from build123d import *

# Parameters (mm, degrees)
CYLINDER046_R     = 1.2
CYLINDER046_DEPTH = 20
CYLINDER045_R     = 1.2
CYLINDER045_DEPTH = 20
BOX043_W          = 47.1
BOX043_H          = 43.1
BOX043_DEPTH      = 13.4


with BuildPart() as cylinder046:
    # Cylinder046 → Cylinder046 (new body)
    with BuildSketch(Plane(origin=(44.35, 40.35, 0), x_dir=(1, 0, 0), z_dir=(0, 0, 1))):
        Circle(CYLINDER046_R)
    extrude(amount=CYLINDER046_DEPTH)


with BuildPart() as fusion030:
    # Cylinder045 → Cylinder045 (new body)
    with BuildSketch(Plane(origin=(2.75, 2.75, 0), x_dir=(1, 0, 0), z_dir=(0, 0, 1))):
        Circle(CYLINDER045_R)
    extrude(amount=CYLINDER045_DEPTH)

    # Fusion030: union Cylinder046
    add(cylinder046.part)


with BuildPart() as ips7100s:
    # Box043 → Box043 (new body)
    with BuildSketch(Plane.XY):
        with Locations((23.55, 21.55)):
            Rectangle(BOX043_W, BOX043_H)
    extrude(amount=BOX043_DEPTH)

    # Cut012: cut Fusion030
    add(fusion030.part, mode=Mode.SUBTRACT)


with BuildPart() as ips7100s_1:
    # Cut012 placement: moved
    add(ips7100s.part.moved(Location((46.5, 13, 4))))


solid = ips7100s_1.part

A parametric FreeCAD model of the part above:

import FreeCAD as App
import Part
import Sketcher

V = App.Vector
Q = App.Units.Quantity

doc = App.newDocument("Part")
params = doc.addObject("Spreadsheet::Sheet", "Params")
for row, (alias, value) in enumerate([
    ("sketch1_diameter", "2.4 mm"),
    ("pad1_length", "20 mm"),
    ("sketch2_diameter", "2.4 mm"),
    ("pad2_length", "20 mm"),
    ("sketch3_width", "47.1 mm"),
    ("sketch3_height", "43.1 mm"),
    ("pad3_length", "13.4 mm"),
], start=1):
    params.set(f"A{row}", alias)
    params.set(f"B{row}", "=" + value)
    params.setAlias(f"B{row}", alias)

body = doc.addObject("PartDesign::Body", "Body")

# Sketch on XY plane
sketch1 = body.newObject("Sketcher::SketchObject", "Sketch")
sketch1.AttachmentSupport = (doc.getObject("XY_Plane"), [""])
sketch1.MapMode = "FlatFace"
sketch1.addGeometry(Part.Circle(V(44.4, 40.4, 0), V(0, 0, 1), 1.2), False)
sketch1.addConstraint([
    Sketcher.Constraint("Diameter", 0, Q("2.4 mm")),
    Sketcher.Constraint("DistanceX", -1, 1, 0, 3, Q("44.35 mm")),
    Sketcher.Constraint("DistanceY", -1, 1, 0, 3, Q("40.35 mm")),
])
sketch1.setExpression("Constraints[0]", "Params.sketch1_diameter")
pad1 = body.newObject("PartDesign::Pad", "Pad")
pad1.Profile = sketch1
pad1.setExpression("Length", "Params.pad1_length")
body2 = doc.addObject("PartDesign::Body", "Body001")
body2.AllowCompound = True

# Sketch on XY plane
sketch2 = body2.newObject("Sketcher::SketchObject", "Sketch001")
sketch2.AttachmentSupport = (doc.getObject("XY_Plane001"), [""])
sketch2.MapMode = "FlatFace"
sketch2.addGeometry(Part.Circle(V(2.8, 2.8, 0), V(0, 0, 1), 1.2), False)
sketch2.addConstraint([
    Sketcher.Constraint("Diameter", 0, Q("2.4 mm")),
    Sketcher.Constraint("DistanceX", -1, 1, 0, 3, Q("2.75 mm")),
    Sketcher.Constraint("DistanceY", -1, 1, 0, 3, Q("2.75 mm")),
])
sketch2.setExpression("Constraints[0]", "Params.sketch2_diameter")
pad2 = body2.newObject("PartDesign::Pad", "Pad001")
pad2.Profile = sketch2
pad2.setExpression("Length", "Params.pad2_length")
doc.recompute()

boolean = body2.newObject("PartDesign::Boolean", "Boolean")
boolean.Type = "Fuse"
boolean.addObjects([body])
body3 = doc.addObject("PartDesign::Body", "Body002")

# Sketch on XY plane
sketch3 = body3.newObject("Sketcher::SketchObject", "Sketch002")
sketch3.AttachmentSupport = (doc.getObject("XY_Plane002"), [""])
sketch3.MapMode = "FlatFace"
sketch3.addGeometry([
    Part.LineSegment(V(0, 43, 0), V(0, 0, 0)),
    Part.LineSegment(V(0, 0, 0), V(47, 0, 0)),
    Part.LineSegment(V(47, 0, 0), V(47, 43, 0)),
    Part.LineSegment(V(47, 43, 0), V(0, 43, 0)),
], False)
sketch3.addConstraint([
    Sketcher.Constraint("Coincident", 0, 2, 1, 1),
    Sketcher.Constraint("Coincident", 1, 2, 2, 1),
    Sketcher.Constraint("Coincident", 2, 2, 3, 1),
    Sketcher.Constraint("Coincident", 3, 2, 0, 1),
    Sketcher.Constraint("Vertical", 0),
    Sketcher.Constraint("Horizontal", 1),
    Sketcher.Constraint("Vertical", 2),
    Sketcher.Constraint("Horizontal", 3),
    Sketcher.Constraint("Coincident", 0, 2, -1, 1),
    Sketcher.Constraint("DistanceX", 1, 1, 1, 2, Q("47.1 mm")),
    Sketcher.Constraint("DistanceY", 0, 2, 0, 1, Q("43.1 mm")),
])
sketch3.setExpression("Constraints[9]", "Params.sketch3_width")
sketch3.setExpression("Constraints[10]", "Params.sketch3_height")
pad3 = body3.newObject("PartDesign::Pad", "Pad002")
pad3.Profile = sketch3
pad3.setExpression("Length", "Params.pad3_length")
doc.recompute()

boolean2 = body3.newObject("PartDesign::Boolean", "Boolean001")
boolean2.Type = "Cut"
boolean2.addObjects([body2])
body4 = doc.addObject("PartDesign::Body", "Body003")
doc.recompute()

body3.Placement = App.Placement(V(46.5, 13, 4), App.Rotation(V(0, 0, 1), 0))
boolean3 = body4.newObject("PartDesign::Boolean", "Boolean002")
boolean3.Type = "Fuse"
boolean3.addObjects([body3])

doc.recompute()
